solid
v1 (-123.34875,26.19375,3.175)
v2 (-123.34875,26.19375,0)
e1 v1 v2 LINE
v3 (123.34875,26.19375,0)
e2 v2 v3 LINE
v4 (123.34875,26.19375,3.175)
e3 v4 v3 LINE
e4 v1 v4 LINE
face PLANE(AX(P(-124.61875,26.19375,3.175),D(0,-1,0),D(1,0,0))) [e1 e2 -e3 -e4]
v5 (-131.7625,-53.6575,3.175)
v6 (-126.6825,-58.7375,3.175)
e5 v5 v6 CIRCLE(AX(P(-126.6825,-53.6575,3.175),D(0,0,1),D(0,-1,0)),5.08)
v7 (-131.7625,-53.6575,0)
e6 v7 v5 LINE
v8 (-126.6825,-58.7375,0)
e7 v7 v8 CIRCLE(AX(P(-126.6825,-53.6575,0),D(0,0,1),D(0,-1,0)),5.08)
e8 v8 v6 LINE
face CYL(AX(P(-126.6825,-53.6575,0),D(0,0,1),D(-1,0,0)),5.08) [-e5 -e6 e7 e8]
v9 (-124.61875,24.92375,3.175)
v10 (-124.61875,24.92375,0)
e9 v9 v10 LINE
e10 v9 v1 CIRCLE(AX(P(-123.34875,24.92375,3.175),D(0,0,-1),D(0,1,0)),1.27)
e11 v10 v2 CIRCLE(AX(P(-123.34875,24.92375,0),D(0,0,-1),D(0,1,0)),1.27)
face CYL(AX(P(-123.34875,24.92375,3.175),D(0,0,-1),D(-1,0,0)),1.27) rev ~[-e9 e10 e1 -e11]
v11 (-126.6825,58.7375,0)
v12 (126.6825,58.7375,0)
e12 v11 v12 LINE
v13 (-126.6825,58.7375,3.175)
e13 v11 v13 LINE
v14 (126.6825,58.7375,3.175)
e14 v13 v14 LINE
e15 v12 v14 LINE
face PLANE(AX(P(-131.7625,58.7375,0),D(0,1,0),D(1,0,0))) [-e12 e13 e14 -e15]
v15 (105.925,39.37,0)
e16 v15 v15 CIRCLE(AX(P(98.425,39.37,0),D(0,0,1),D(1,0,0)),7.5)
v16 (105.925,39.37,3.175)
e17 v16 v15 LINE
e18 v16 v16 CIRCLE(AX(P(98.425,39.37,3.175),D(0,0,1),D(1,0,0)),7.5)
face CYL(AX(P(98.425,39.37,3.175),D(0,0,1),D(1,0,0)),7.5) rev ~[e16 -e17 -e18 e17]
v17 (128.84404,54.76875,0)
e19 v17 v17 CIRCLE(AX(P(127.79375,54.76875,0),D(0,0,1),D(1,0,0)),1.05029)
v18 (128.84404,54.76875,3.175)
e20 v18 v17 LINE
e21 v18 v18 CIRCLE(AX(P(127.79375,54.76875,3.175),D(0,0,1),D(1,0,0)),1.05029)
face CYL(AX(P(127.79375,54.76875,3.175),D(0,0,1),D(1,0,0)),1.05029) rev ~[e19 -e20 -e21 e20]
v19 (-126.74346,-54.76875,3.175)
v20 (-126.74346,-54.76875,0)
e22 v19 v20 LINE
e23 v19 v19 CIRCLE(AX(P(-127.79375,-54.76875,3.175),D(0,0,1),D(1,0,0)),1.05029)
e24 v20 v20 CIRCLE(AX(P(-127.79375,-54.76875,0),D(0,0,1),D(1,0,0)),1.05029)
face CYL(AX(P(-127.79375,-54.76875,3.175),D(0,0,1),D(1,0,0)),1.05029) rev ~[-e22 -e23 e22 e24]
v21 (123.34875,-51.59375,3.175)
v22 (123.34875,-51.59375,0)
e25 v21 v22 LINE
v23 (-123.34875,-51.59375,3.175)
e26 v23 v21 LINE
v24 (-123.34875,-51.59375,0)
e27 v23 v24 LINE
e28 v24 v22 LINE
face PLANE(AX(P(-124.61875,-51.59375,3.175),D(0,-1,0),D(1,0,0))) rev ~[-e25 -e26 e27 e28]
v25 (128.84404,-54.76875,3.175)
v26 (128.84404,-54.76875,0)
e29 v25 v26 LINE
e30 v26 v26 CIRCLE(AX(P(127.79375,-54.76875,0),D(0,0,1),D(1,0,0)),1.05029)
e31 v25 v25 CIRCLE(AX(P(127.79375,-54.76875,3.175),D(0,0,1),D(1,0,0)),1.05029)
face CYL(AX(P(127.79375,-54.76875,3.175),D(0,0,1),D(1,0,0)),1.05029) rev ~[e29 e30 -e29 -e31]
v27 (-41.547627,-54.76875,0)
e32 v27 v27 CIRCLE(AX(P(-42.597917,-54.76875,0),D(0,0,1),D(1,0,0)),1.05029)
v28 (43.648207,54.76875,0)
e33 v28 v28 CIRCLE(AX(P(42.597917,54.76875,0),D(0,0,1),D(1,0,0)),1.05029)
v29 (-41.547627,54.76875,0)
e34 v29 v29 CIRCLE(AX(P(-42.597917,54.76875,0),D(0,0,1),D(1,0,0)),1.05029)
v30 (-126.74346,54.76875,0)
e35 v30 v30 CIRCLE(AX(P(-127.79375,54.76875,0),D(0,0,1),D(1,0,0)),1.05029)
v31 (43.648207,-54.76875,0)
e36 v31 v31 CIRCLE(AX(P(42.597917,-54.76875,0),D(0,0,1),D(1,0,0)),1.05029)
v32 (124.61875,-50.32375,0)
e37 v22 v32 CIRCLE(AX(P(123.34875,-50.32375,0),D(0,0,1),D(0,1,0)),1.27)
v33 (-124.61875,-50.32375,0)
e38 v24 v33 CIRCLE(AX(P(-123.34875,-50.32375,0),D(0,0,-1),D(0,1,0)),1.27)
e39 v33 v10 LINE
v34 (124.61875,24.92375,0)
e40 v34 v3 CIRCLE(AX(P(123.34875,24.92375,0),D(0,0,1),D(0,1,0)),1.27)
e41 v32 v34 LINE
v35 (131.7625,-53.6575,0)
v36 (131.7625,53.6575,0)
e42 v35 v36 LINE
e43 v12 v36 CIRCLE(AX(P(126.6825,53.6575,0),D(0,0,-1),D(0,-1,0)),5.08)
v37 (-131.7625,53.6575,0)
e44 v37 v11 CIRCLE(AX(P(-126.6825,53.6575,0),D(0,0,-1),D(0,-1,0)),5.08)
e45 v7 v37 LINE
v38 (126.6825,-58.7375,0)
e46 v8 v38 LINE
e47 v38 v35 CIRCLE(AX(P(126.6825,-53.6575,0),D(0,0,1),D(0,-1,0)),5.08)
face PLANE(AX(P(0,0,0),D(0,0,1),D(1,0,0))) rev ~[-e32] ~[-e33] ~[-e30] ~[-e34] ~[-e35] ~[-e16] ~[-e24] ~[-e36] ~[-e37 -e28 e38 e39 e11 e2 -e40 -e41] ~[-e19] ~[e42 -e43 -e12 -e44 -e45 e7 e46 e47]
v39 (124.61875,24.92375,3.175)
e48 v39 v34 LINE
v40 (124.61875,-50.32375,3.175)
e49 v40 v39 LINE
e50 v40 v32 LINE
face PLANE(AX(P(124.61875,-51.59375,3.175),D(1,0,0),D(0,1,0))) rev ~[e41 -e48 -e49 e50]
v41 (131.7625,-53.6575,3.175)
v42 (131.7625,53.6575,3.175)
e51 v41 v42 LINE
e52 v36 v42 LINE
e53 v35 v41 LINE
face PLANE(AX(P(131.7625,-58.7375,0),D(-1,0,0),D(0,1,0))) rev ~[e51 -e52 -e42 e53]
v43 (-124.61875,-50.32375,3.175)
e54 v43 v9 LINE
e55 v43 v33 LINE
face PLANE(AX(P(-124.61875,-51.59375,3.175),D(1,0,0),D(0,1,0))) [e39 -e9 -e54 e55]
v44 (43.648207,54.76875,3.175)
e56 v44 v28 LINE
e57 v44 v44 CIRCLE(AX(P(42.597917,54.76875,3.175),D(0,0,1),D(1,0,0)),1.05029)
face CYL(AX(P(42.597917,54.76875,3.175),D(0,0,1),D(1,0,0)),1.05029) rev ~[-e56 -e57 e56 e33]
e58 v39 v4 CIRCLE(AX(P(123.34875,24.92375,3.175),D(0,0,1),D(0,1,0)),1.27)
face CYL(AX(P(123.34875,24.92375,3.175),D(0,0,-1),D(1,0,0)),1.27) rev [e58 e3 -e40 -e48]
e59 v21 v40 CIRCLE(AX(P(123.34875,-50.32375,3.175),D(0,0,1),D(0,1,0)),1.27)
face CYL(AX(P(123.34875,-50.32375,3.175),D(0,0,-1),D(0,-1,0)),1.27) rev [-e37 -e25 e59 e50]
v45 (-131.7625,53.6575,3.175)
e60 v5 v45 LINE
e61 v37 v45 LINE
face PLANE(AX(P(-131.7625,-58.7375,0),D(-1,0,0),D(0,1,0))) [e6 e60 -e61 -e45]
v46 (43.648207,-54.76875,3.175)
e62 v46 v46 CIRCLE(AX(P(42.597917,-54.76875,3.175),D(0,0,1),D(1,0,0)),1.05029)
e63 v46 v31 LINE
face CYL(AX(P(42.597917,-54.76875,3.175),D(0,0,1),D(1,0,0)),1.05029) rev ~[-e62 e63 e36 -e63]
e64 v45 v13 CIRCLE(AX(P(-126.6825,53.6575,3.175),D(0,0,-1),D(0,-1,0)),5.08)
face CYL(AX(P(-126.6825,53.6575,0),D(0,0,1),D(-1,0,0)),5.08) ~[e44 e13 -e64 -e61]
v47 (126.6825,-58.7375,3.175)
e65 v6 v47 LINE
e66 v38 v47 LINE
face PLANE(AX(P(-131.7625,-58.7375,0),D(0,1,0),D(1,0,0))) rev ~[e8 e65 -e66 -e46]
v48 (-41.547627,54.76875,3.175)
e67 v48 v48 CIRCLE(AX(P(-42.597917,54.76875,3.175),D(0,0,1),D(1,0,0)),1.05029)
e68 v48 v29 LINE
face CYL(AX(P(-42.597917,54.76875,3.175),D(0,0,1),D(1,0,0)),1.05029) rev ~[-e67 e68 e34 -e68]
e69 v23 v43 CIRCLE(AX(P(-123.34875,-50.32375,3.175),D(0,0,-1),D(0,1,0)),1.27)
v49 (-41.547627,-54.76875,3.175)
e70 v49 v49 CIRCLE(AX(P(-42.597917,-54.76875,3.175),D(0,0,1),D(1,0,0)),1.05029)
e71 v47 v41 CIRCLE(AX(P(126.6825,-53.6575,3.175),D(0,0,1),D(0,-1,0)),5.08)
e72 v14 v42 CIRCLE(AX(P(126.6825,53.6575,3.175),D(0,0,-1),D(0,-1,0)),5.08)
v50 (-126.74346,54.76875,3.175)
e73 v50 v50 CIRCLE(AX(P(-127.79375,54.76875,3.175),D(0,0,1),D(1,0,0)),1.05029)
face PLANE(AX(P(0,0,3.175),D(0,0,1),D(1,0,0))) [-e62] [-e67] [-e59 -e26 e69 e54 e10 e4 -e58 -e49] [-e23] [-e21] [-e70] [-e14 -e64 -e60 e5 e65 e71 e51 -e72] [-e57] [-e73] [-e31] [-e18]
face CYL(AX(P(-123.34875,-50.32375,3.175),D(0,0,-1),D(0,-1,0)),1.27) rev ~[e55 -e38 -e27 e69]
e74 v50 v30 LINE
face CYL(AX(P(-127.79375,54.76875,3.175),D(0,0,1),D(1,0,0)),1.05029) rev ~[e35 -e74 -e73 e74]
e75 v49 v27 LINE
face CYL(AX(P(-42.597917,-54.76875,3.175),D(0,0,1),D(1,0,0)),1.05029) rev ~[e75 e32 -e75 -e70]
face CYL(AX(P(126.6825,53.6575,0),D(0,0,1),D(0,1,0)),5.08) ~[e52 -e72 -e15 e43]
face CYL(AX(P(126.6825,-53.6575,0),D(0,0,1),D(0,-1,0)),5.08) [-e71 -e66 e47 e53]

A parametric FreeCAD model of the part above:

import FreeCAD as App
import Part
import Sketcher
from FreeCAD import Vector
Q = App.Units.Quantity


def edges_at(feature, points):
    """Names of the edges that pass closest to the given points."""
    edges = feature.Shape.Edges
    near = lambda p: min(range(len(edges)), key=lambda i: edges[i].distToShape(Part.Vertex(*p))[0])
    return sorted({f"Edge{near(p) + 1}" for p in points})


def add_polygon(sketch, points):
    """Adds a closed chain of lines whose ends are joined by coincident constraints."""
    first, n = sketch.GeometryCount, len(points)
    for a, b in zip(points, points[1:] + points[:1]):
        sketch.addGeometry(Part.LineSegment(App.Vector(*a, 0), App.Vector(*b, 0)), False)
    for i in range(n):
        sketch.addConstraint(Sketcher.Constraint("Coincident", first + i, 2, first + (i + 1) % n, 1))

doc = App.newDocument("Part")
body = doc.addObject("PartDesign::Body", "Body")

# Sketch on XY plane
sketch1 = doc.addObject("Sketcher::SketchObject", "Sketch")
body.addObject(sketch1)
sketch1.AttachmentSupport = (doc.XY_Plane, [""])
sketch1.MapMode = "FlatFace"
add_polygon(sketch1, [(-132, 59), (-132, -59), (132, -59), (132, 59)])  # lines 0-3
sketch1.addConstraint([
    Sketcher.Constraint("Vertical", 0),
    Sketcher.Constraint("Horizontal", 1),
    Sketcher.Constraint("Vertical", 2),
    Sketcher.Constraint("Horizontal", 3),
    Sketcher.Constraint("Symmetric", 0, 2, 2, 2, -1, 1),
    Sketcher.Constraint("DistanceX", 1, 1, 1, 2, Q("10.375 in")),
    Sketcher.Constraint("DistanceY", 0, 2, 0, 1, Q("4.625 in")),
])
pad1 = doc.addObject("PartDesign::Pad", "Pad")
body.addObject(pad1)
pad1.Profile = sketch1
pad1.Length = Q("0.125 in")

# Sketch on XY plane
sketch2 = doc.addObject("Sketcher::SketchObject", "Sketch001")
body.addObject(sketch2)
sketch2.AttachmentSupport = (doc.XY_Plane, [""])
sketch2.MapMode = "FlatFace"
sketch2.AttachmentOffset = App.Placement(Vector(0, 0, 0.125 * 25.4), App.Rotation())
add_polygon(sketch2, [(-125, 26), (-125, -52), (125, -52), (125, 26)])  # lines 0-3
sketch2.addConstraint([
    Sketcher.Constraint("Vertical", 0),
    Sketcher.Constraint("Horizontal", 1),
    Sketcher.Constraint("Vertical", 2),
    Sketcher.Constraint("Horizontal", 3),
    Sketcher.Constraint("DistanceX", 1, 1, 1, 2, Q("9.8125 in")),
    Sketcher.Constraint("DistanceY", 0, 2, 0, 1, Q("3.0625 in")),
    Sketcher.Constraint("DistanceX", 0, 2, -1, 1, Q("4.90625 in")),
    Sketcher.Constraint("DistanceY", 0, 2, -1, 1, Q("2.03125 in")),
])
pocket1 = doc.addObject("PartDesign::Pocket", "Pocket")
body.addObject(pocket1)
pocket1.Profile = sketch2
pocket1.Type = "ThroughAll"

# Sketch on XY plane
sketch3 = doc.addObject("Sketcher::SketchObject", "Sketch002")
body.addObject(sketch3)
sketch3.AttachmentSupport = (doc.XY_Plane, [""])
sketch3.MapMode = "FlatFace"
sketch3.AttachmentOffset = App.Placement(Vector(0, 0, 0.125 * 25.4), App.Rotation())
sketch3.addGeometry(Part.Circle(Vector(98, 39, 0), Vector(0, 0, 1), 8), False)
sketch3.addConstraint([
    Sketcher.Constraint("Diameter", 0, Q("15 mm")),
    Sketcher.Constraint("DistanceY", -1, 1, 0, 3, Q("1.55 in")),
    Sketcher.Constraint("DistanceX", -1, 1, 0, 3, Q("3.875 in")),
])
pocket2 = doc.addObject("PartDesign::Pocket", "Pocket001")
body.addObject(pocket2)
pocket2.Profile = sketch3
pocket2.Type = "ThroughAll"

# Sketch on XY plane
sketch4 = doc.addObject("Sketcher::SketchObject", "Sketch003")
body.addObject(sketch4)
sketch4.AttachmentSupport = (doc.XY_Plane, [""])
sketch4.MapMode = "FlatFace"
sketch4.AttachmentOffset = App.Placement(Vector(0, 0, 0.125 * 25.4), App.Rotation())
sketch4.addGeometry([
    Part.Circle(Vector(-42.6, 54.8, 0), Vector(0, 0, 1), 1.1),  # 0
    Part.Circle(Vector(42.6, 54.8, 0), Vector(0, 0, 1), 1.1),  # 1
    Part.Circle(Vector(42.6, -54.8, 0), Vector(0, 0, 1), 1.1),  # 2
    Part.Circle(Vector(-42.6, -54.8, 0), Vector(0, 0, 1), 1.1),  # 3
    Part.Circle(Vector(-127.8, -54.8, 0), Vector(0, 0, 1), 1.1),  # 4
    Part.Circle(Vector(-127.8, 54.8, 0), Vector(0, 0, 1), 1.1),  # 5
    Part.Circle(Vector(127.8, 54.8, 0), Vector(0, 0, 1), 1.1),  # 6
    Part.Circle(Vector(127.8, -54.8, 0), Vector(0, 0, 1), 1.1),  # 7
], False)
sketch4.addConstraint([
    Sketcher.Constraint("Equal", 0, 1),
    Sketcher.Constraint("Equal", 1, 2),
    Sketcher.Constraint("Equal", 2, 3),
    Sketcher.Constraint("Equal", 3, 4),
    Sketcher.Constraint("Equal", 4, 5),
    Sketcher.Constraint("Equal", 5, 6),
    Sketcher.Constraint("Equal", 6, 7),
    Sketcher.Constraint("Symmetric", 0, 3, 2, 3, -1, 1),
    Sketcher.Constraint("Symmetric", 1, 3, 3, 3, -1, 1),
    Sketcher.Constraint("Symmetric", 4, 3, 6, 3, -1, 1),
    Sketcher.Constraint("Symmetric", 5, 3, 7, 3, -1, 1),
    Sketcher.Constraint("Symmetric", 0, 3, 1, 3, -2),
    Sketcher.Constraint("Symmetric", 5, 3, 6, 3, -2),
    Sketcher.Constraint("Horizontal", 3, 3, 4, 3),
    Sketcher.Constraint("Diameter", 0, Q("0.0827 in")),
    Sketcher.Constraint("DistanceY", -1, 1, 0, 3, Q("2.15625 in")),
    Sketcher.Constraint("DistanceX", 4, 3, -1, 1, Q("5.03125 in")),
    Sketcher.Constraint("DistanceX", 0, 3, -1, 1, Q("42.597917 mm")),
])
pocket3 = doc.addObject("PartDesign::Pocket", "Pocket002")
body.addObject(pocket3)
pocket3.Profile = sketch4
pocket3.Type = "ThroughAll"
doc.recompute()

fillet = doc.addObject("PartDesign::Fillet", "Fillet")
body.addObject(fillet)
fillet.Base = (pocket3, edges_at(pocket3, [
    (-131.762, 58.737, 1.587),
    (-131.762, -58.737, 1.587),
    (131.762, -58.737, 1.587),
    (131.762, 58.737, 1.587),
]))
fillet.Radius = Q("0.2 in")
doc.recompute()

fillet2 = doc.addObject("PartDesign::Fillet", "Fillet001")
body.addObject(fillet2)
fillet2.Base = (fillet, edges_at(fillet, [
    (-124.619, -51.594, 1.587),
    (-124.619, 26.194, 1.587),
    (124.619, 26.194, 1.587),
    (124.619, -51.594, 1.587),
]))
fillet2.Radius = Q("0.05 in")

doc.recompute()
